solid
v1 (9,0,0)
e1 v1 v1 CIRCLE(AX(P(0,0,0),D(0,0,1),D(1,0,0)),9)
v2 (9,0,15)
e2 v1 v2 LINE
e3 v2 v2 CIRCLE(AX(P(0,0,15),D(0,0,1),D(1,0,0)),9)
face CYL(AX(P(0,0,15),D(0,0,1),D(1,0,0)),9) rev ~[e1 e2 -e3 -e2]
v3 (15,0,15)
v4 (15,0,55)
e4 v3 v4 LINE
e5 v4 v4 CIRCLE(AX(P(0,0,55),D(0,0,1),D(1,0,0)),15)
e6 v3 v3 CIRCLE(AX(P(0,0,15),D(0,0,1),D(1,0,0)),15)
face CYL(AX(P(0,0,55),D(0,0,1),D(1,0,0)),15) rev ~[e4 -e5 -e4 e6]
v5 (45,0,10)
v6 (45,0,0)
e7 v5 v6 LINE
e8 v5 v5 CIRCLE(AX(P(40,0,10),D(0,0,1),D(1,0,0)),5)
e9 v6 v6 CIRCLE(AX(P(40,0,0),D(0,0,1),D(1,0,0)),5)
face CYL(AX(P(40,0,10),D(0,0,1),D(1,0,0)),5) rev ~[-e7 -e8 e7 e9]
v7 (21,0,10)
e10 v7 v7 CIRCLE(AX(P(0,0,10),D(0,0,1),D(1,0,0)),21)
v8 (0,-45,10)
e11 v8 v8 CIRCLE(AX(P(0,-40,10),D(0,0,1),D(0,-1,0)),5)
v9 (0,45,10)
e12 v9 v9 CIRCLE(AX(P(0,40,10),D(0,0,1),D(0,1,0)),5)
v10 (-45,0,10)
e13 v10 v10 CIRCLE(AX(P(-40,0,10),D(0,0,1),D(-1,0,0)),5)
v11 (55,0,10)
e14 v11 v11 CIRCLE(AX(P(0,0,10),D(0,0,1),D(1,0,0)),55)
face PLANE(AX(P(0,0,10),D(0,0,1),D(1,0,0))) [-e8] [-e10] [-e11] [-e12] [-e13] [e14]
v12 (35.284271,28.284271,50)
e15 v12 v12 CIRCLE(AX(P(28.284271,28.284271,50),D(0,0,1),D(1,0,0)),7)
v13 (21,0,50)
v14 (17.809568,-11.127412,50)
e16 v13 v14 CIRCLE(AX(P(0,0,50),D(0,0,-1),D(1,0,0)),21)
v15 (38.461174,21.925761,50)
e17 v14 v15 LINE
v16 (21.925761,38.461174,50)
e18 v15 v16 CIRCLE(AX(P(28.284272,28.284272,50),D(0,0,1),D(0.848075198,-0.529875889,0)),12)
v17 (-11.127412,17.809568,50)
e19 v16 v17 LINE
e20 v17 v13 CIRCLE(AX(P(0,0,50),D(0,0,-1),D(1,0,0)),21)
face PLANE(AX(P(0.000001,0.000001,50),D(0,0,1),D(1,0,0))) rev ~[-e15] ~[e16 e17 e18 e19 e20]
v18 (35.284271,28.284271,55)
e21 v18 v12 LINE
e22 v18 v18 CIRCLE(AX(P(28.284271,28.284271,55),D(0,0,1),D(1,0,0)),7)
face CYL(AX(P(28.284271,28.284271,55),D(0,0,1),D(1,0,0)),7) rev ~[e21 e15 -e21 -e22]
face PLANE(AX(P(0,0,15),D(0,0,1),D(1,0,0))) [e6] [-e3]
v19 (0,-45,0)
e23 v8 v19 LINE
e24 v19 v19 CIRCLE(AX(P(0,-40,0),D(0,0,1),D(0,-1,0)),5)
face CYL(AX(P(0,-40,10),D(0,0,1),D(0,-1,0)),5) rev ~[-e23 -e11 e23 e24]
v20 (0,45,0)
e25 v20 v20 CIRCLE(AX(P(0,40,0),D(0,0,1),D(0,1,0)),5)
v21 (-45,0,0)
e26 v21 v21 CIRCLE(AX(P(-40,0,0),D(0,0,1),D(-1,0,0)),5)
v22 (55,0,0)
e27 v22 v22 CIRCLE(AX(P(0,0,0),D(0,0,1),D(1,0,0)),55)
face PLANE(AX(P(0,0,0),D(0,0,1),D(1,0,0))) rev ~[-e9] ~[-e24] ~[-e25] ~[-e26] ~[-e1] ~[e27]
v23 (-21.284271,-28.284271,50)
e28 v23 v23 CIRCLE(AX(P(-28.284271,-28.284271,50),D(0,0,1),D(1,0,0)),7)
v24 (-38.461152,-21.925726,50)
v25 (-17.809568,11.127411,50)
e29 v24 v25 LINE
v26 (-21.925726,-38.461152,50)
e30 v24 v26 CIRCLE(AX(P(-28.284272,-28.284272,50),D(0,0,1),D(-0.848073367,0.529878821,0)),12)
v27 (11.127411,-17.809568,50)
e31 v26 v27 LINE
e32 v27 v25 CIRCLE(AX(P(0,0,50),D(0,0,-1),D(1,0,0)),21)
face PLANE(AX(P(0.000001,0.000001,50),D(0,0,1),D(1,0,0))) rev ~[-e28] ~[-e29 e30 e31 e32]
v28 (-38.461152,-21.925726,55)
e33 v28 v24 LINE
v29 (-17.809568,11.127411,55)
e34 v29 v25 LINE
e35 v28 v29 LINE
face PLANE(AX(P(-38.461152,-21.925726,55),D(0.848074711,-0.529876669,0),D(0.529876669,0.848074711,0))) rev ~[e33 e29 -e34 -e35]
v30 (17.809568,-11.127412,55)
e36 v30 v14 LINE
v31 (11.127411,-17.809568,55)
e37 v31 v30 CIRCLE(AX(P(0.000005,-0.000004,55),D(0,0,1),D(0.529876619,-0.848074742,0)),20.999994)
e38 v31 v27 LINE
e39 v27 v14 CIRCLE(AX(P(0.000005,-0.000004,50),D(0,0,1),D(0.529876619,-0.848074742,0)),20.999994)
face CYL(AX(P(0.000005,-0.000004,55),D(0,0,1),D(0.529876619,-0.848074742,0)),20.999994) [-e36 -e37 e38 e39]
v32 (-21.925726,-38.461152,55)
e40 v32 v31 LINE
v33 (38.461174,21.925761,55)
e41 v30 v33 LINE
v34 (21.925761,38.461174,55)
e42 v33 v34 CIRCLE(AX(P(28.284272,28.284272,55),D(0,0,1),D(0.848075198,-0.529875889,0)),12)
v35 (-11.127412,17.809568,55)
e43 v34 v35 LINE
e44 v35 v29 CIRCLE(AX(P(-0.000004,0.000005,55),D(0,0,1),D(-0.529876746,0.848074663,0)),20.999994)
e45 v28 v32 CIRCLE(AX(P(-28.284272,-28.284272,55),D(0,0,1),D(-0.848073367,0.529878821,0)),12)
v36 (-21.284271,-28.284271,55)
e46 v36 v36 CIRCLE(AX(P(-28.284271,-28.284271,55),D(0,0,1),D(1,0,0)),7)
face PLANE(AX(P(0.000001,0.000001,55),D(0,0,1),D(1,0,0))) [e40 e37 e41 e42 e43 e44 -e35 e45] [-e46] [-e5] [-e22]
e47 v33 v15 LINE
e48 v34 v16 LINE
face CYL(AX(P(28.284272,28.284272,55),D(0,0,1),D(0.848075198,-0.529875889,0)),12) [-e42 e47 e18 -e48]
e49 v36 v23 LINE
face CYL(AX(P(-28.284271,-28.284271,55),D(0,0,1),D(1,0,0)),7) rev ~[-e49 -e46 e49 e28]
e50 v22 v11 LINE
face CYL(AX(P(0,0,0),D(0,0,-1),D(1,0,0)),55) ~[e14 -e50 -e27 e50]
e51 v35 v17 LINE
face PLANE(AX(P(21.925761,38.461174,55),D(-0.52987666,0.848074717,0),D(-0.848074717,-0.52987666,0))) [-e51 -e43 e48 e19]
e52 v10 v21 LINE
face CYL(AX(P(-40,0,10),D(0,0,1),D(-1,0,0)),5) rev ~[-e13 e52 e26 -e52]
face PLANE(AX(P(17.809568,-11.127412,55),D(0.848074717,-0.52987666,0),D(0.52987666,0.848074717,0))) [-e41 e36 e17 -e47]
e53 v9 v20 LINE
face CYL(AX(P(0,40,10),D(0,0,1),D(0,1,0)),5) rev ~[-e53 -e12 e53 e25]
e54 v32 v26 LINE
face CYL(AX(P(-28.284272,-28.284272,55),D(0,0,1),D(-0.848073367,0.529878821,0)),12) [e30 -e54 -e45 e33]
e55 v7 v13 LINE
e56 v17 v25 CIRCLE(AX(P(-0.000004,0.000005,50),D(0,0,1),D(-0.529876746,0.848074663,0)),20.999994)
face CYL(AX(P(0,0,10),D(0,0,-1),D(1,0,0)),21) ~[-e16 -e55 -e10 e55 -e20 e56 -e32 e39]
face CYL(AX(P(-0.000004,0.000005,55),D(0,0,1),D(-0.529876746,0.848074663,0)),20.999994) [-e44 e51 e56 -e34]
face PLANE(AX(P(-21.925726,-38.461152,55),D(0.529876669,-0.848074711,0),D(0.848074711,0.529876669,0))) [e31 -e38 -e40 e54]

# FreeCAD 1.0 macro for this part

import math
import FreeCAD as App
import Part
import Sketcher
from FreeCAD import Vector

doc = App.newDocument("Part")
body = doc.addObject("PartDesign::Body", "Body")

# Sketch on XY plane
sketch1 = body.newObject("Sketcher::SketchObject", "Sketch")
sketch1.AttachmentSupport = (doc.getObject("XY_Plane"), [""])
sketch1.MapMode = "FlatFace"
sketch1.addGeometry(Part.Circle(Vector(0, 0, 0), Vector(0, 0, 1), 55), False)
sketch1.addGeometry(Part.Circle(Vector(0, 0, 0), Vector(0, 0, 1), 9), False)
sketch1.addConstraint(Sketcher.Constraint("Coincident", 0, 3, -1, 1))
sketch1.addConstraint(Sketcher.Constraint("Coincident", 1, 3, -1, 1))
sketch1.addConstraint(Sketcher.Constraint("Diameter", 0, 110.0))
sketch1.addConstraint(Sketcher.Constraint("Diameter", 1, 18.0))
pad1 = body.newObject("PartDesign::Pad", "Pad")
pad1.Profile = sketch1
pad1.Length = 10

# Sketch on XY plane
sketch2 = body.newObject("Sketcher::SketchObject", "Sketch001")
sketch2.AttachmentSupport = (doc.getObject("XY_Plane"), [""])
sketch2.MapMode = "FlatFace"
sketch2.AttachmentOffset = App.Placement(Vector(0, 0, 10), App.Rotation())
sketch2.addGeometry(Part.Circle(Vector(40, 0, 0), Vector(0, 0, 1), 5), False)
sketch2.addConstraint(Sketcher.Constraint("PointOnObject", 0, 3, -1))
sketch2.addConstraint(Sketcher.Constraint("Diameter", 0, 10.0))
sketch2.addConstraint(Sketcher.Constraint("DistanceX", -1, 1, 0, 3, 40.0))
pocket1 = body.newObject("PartDesign::Pocket", "Pocket")
pocket1.Profile = sketch2
pocket1.Type = "ThroughAll"
doc.recompute()

polarpattern = body.newObject("PartDesign::PolarPattern", "PolarPattern")
polarpattern.Originals = [pocket1]
polarpattern.Axis = (doc.getObject("Z_Axis"), [""])
polarpattern.Angle = 360
polarpattern.Occurrences = 4
body.Tip = polarpattern

# Sketch on XY plane
sketch3 = body.newObject("Sketcher::SketchObject", "Sketch002")
sketch3.AttachmentSupport = (doc.getObject("XY_Plane"), [""])
sketch3.MapMode = "FlatFace"
sketch3.AttachmentOffset = App.Placement(Vector(0, 0, 10), App.Rotation())
sketch3.addGeometry(Part.Circle(Vector(0, 0, 0), Vector(0, 0, 1), 21), False)
sketch3.addConstraint(Sketcher.Constraint("Coincident", 0, 3, -1, 1))
sketch3.addConstraint(Sketcher.Constraint("Diameter", 0, 42.0))
pad2 = body.newObject("PartDesign::Pad", "Pad001")
pad2.Profile = sketch3
pad2.Length = 45

# Sketch on XY plane
sketch4 = body.newObject("Sketcher::SketchObject", "Sketch003")
sketch4.AttachmentSupport = (doc.getObject("XY_Plane"), [""])
sketch4.MapMode = "FlatFace"
sketch4.AttachmentOffset = App.Placement(Vector(0, 0, 55), App.Rotation())
sketch4.addGeometry(Part.Circle(Vector(0, 0, 0), Vector(0, 0, 1), 15), False)
sketch4.addConstraint(Sketcher.Constraint("Coincident", 0, 3, -1, 1))
sketch4.addConstraint(Sketcher.Constraint("Diameter", 0, 30.0))
pocket2 = body.newObject("PartDesign::Pocket", "Pocket001")
pocket2.Profile = sketch4
pocket2.Length = 40

# Sketch on XY plane
sketch5 = body.newObject("Sketcher::SketchObject", "Sketch004")
sketch5.AttachmentSupport = (doc.getObject("XY_Plane"), [""])
sketch5.MapMode = "FlatFace"
sketch5.AttachmentOffset = App.Placement(Vector(0, 0, 15), App.Rotation())
sketch5.addGeometry(Part.Circle(Vector(0, 0, 0), Vector(0, 0, 1), 9), False)
sketch5.addConstraint(Sketcher.Constraint("Coincident", 0, 3, -1, 1))
sketch5.addConstraint(Sketcher.Constraint("Diameter", 0, 18.0))
pocket3 = body.newObject("PartDesign::Pocket", "Pocket002")
pocket3.Profile = sketch5
pocket3.Length = 5

# Sketch on XY plane
sketch6 = body.newObject("Sketcher::SketchObject", "Sketch005")
sketch6.AttachmentSupport = (doc.getObject("XY_Plane"), [""])
sketch6.MapMode = "FlatFace"
sketch6.AttachmentOffset = App.Placement(Vector(0, 0, 55), App.Rotation())
sketch6.addGeometry(Part.ArcOfCircle(Part.Circle(Vector(-28, -28, 0), Vector(0, 0, 1), 12), math.radians(148), math.radians(302)), False)
sketch6.addGeometry(Part.LineSegment(Vector(-22, -38, 0), Vector(11, -18, 0)), False)
sketch6.addGeometry(Part.ArcOfCircle(Part.Circle(Vector(0, 0, 0), Vector(0, 0, 1), 21), math.radians(-58), math.radians(-32)), False)
sketch6.addGeometry(Part.LineSegment(Vector(18, -11, 0), Vector(38, 22, 0)), False)
sketch6.addGeometry(Part.ArcOfCircle(Part.Circle(Vector(28, 28, 0), Vector(0, 0, 1), 12), math.radians(-32), math.radians(122)), False)
sketch6.addGeometry(Part.LineSegment(Vector(22, 38, 0), Vector(-11, 18, 0)), False)
sketch6.addGeometry(Part.ArcOfCircle(Part.Circle(Vector(0, 0, 0), Vector(0, 0, 1), 21), math.radians(122), math.radians(148)), False)
sketch6.addGeometry(Part.LineSegment(Vector(-18, 11, 0), Vector(-38, -22, 0)), False)
sketch6.addGeometry(Part.Circle(Vector(-28, -28, 0), Vector(0, 0, 1), 7), False)
sketch6.addGeometry(Part.Circle(Vector(0, 0, 0), Vector(0, 0, 1), 15), False)
sketch6.addGeometry(Part.Circle(Vector(28, 28, 0), Vector(0, 0, 1), 7), False)
sketch6.addConstraint(Sketcher.Constraint("Coincident", 0, 2, 1, 1))
sketch6.addConstraint(Sketcher.Constraint("Tangent", 1, 2, 2, 1))
sketch6.addConstraint(Sketcher.Constraint("Tangent", 2, 2, 3, 1))
sketch6.addConstraint(Sketcher.Constraint("Tangent", 3, 2, 4, 1))
sketch6.addConstraint(Sketcher.Constraint("Tangent", 4, 2, 5, 1))
sketch6.addConstraint(Sketcher.Constraint("Tangent", 5, 2, 6, 1))
sketch6.addConstraint(Sketcher.Constraint("Tangent", 6, 2, 7, 1))
sketch6.addConstraint(Sketcher.Constraint("Coincident", 7, 2, 0, 1))
sketch6.addConstraint(Sketcher.Constraint("Coincident", 2, 3, -1, 1))
sketch6.addConstraint(Sketcher.Constraint("Coincident", 6, 3, -1, 1))
sketch6.addConstraint(Sketcher.Constraint("Coincident", 9, 3, -1, 1))
sketch6.addConstraint(Sketcher.Constraint("Coincident", 8, 3, 0, 3))
sketch6.addConstraint(Sketcher.Constraint("Coincident", 10, 3, 4, 3))
sketch6.addConstraint(Sketcher.Constraint("Equal", 0, 4))
sketch6.addConstraint(Sketcher.Constraint("Equal", 2, 6))
sketch6.addConstraint(Sketcher.Constraint("Equal", 8, 10))
sketch6.addConstraint(Sketcher.Constraint("Symmetric", 0, 3, 4, 3, -1, 1))
sketch6.addConstraint(Sketcher.Constraint("Equal", 1, 7))
sketch6.addConstraint(Sketcher.Constraint("Diameter", 8, 14.0))
sketch6.addConstraint(Sketcher.Constraint("Diameter", 9, 30.0))
sketch6.addConstraint(Sketcher.Constraint("Radius", 0, 12.0))
sketch6.addConstraint(Sketcher.Constraint("Radius", 2, 20.999994))
sketch6.addConstraint(Sketcher.Constraint("DistanceX", 0, 3, -1, 1, 28.284272))
sketch6.addConstraint(Sketcher.Constraint("DistanceY", 0, 3, -1, 1, 28.284272))
sketch6.addConstraint(Sketcher.Constraint("DistanceX", 7, 2, -1, 1, 38.461152))
pad3 = body.newObject("PartDesign::Pad", "Pad002")
pad3.Profile = sketch6
pad3.Length = 5
pad3.Reversed = True

doc.recompute()
